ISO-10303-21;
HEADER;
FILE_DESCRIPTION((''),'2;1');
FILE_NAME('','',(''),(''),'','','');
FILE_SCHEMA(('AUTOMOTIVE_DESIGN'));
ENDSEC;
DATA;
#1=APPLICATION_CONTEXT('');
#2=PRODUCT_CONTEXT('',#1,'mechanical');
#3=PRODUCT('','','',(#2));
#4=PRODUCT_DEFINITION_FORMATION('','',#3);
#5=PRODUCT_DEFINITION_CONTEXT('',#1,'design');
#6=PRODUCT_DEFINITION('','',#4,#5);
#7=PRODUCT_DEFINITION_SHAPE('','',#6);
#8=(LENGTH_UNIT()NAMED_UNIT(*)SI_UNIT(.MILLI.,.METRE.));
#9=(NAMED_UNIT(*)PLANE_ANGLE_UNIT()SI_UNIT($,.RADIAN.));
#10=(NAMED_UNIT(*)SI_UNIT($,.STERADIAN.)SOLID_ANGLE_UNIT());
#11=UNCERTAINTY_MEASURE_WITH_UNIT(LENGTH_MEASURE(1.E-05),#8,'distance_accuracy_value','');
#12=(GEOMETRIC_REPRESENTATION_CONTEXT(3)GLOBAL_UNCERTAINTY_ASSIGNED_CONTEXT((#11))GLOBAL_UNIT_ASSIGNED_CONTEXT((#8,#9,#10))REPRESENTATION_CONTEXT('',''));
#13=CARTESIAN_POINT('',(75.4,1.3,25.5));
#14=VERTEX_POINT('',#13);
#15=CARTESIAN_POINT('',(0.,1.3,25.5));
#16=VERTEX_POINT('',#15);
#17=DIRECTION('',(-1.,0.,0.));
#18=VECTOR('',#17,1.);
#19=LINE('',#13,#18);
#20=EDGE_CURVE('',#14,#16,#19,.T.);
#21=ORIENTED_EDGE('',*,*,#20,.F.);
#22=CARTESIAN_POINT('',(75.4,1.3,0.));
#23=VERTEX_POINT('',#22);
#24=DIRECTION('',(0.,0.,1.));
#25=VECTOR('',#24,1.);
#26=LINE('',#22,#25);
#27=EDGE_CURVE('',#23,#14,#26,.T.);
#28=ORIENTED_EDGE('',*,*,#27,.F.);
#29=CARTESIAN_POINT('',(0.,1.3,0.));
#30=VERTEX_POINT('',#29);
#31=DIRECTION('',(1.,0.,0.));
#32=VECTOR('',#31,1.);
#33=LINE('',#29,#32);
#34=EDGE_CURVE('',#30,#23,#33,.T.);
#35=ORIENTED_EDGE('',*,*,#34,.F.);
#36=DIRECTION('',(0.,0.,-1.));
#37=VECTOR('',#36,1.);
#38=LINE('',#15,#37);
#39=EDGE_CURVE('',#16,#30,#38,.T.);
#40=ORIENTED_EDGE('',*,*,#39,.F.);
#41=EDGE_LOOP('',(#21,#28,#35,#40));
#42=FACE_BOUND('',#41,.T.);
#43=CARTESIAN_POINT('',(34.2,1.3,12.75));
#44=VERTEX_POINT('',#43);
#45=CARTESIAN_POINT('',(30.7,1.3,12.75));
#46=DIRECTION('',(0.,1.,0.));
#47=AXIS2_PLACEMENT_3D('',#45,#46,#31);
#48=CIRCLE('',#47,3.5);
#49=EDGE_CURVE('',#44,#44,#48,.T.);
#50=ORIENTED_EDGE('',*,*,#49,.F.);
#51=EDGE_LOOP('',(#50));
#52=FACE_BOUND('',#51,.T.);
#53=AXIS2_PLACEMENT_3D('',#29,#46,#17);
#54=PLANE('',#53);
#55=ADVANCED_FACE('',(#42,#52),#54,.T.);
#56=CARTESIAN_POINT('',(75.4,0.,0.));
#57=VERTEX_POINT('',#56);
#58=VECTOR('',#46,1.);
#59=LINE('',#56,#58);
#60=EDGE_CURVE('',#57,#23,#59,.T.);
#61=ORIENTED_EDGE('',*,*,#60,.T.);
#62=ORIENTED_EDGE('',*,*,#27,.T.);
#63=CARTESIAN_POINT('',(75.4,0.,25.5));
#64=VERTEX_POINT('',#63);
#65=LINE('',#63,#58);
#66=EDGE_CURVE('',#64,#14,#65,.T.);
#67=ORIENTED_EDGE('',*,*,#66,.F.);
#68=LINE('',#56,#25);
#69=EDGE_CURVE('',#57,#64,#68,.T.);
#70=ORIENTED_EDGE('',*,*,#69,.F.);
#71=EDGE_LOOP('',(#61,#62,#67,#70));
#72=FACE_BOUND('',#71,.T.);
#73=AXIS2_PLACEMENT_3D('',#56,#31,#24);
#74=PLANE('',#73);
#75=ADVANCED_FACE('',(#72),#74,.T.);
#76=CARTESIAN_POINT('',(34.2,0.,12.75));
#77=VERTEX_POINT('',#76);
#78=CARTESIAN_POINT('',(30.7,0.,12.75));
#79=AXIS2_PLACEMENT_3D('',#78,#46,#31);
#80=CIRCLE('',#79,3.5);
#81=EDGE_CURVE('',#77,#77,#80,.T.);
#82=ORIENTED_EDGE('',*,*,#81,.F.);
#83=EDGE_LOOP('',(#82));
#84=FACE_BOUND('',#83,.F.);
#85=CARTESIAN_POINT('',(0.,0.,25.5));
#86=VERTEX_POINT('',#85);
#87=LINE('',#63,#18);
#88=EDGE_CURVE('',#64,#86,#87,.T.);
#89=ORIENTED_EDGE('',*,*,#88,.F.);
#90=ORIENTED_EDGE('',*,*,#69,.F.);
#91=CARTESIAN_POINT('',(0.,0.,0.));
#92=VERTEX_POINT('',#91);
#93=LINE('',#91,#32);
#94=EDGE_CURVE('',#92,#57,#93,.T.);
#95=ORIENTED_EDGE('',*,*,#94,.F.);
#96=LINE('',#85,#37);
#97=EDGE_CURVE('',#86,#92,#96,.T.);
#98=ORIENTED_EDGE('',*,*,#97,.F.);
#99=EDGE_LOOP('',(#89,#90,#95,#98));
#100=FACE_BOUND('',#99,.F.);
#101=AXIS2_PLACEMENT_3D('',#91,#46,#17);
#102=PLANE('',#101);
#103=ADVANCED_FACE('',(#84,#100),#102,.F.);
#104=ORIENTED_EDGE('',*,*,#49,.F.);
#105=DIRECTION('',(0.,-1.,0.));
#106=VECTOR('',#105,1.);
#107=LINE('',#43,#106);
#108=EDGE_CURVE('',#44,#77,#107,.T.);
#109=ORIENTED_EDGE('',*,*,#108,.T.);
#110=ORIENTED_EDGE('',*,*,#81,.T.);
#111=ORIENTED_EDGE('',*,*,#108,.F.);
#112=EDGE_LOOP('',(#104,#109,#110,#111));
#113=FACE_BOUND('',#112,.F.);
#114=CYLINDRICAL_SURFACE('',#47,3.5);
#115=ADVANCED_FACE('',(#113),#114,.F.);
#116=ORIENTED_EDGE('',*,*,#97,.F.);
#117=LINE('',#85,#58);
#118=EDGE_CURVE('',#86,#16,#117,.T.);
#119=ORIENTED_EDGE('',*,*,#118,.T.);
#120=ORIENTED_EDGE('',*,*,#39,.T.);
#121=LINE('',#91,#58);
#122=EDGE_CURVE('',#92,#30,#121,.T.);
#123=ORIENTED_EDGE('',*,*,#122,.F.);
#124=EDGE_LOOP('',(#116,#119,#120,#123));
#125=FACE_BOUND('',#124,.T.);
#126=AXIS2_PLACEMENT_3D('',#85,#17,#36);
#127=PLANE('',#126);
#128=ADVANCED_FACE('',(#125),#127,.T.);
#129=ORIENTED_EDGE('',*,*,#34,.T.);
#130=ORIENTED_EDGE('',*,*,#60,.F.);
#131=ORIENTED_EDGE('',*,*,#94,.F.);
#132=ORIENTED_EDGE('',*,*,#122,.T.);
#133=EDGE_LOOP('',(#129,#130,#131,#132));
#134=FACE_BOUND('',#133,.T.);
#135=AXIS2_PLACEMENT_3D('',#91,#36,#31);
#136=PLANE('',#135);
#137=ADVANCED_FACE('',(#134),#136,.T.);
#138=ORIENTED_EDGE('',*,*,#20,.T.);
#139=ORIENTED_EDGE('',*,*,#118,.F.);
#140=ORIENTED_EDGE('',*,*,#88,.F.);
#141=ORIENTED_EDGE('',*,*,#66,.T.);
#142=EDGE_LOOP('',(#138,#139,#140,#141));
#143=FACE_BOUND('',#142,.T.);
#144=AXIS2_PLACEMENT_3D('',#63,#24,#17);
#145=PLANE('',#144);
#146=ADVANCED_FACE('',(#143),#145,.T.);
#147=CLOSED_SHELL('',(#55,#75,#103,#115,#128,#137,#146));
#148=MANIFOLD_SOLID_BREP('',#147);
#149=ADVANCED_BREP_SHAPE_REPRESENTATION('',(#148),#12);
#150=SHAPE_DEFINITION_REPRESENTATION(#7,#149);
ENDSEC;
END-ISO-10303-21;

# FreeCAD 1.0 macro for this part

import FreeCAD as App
import Part
import Sketcher
Q = App.Units.Quantity


def add_polygon(sketch, points):
    """Adds a closed chain of lines whose ends are joined by coincident constraints."""
    first, n = sketch.GeometryCount, len(points)
    for a, b in zip(points, points[1:] + points[:1]):
        sketch.addGeometry(Part.LineSegment(App.Vector(*a, 0), App.Vector(*b, 0)), False)
    for i in range(n):
        sketch.addConstraint(Sketcher.Constraint("Coincident", first + i, 2, first + (i + 1) % n, 1))

doc = App.newDocument("Part")
params = doc.addObject("Spreadsheet::Sheet", "Params")
for row, (alias, value) in enumerate([
    ("sketch1_width", "75.4 mm"),
    ("sketch1_height", "25.5 mm"),
    ("pad1_length", "1.3 mm"),
    ("sketch2_diameter", "7 mm"),
    ("pocket1_length", "10 mm"),
], start=1):
    params.set(f"A{row}", alias)
    params.set(f"B{row}", "=" + value)
    params.setAlias(f"B{row}", alias)

body = doc.addObject("PartDesign::Body", "Body")

# Sketch on XZ plane
sketch1 = body.newObject("Sketcher::SketchObject", "Sketch")
sketch1.AttachmentSupport = (doc.getObject("XZ_Plane"), [""])
sketch1.MapMode = "FlatFace"
add_polygon(sketch1, [(75, 0), (0, 0), (0, 26), (75, 26)])  # lines 0-3
sketch1.addConstraint(Sketcher.Constraint("Horizontal", 0))
sketch1.addConstraint(Sketcher.Constraint("Vertical", 1))
sketch1.addConstraint(Sketcher.Constraint("Horizontal", 2))
sketch1.addConstraint(Sketcher.Constraint("Vertical", 3))
sketch1.addConstraint(Sketcher.Constraint("Coincident", 0, 2, -1, 1))
sketch1.addConstraint(Sketcher.Constraint("DistanceX", 0, 2, 0, 1, Q("75.4 mm")))
sketch1.addConstraint(Sketcher.Constraint("DistanceY", 1, 1, 1, 2, Q("25.5 mm")))
sketch1.setExpression("Constraints[9]", "Params.sketch1_width")
sketch1.setExpression("Constraints[10]", "Params.sketch1_height")
pad1 = body.newObject("PartDesign::Pad", "Pad")
pad1.Profile = sketch1
pad1.setExpression("Length", "Params.pad1_length")
pad1.Reversed = True

# Sketch on XZ plane
sketch2 = body.newObject("Sketcher::SketchObject", "Sketch001")
sketch2.AttachmentSupport = (doc.getObject("XZ_Plane"), [""])
sketch2.MapMode = "FlatFace"
sketch2.AttachmentOffset = App.Placement(App.Vector(0, 0, -1.3), App.Rotation())
sketch2.addGeometry(Part.Circle(App.Vector(30.7, 12.8, 0), App.Vector(0, 0, 1), 3.5), False)
sketch2.addConstraint(Sketcher.Constraint("Diameter", 0, Q("7 mm")))
sketch2.addConstraint(Sketcher.Constraint("DistanceX", -1, 1, 0, 3, Q("30.7 mm")))
sketch2.addConstraint(Sketcher.Constraint("DistanceY", -1, 1, 0, 3, Q("12.75 mm")))
sketch2.setExpression("Constraints[0]", "Params.sketch2_diameter")
pocket1 = body.newObject("PartDesign::Pocket", "Pocket")
pocket1.Profile = sketch2
pocket1.setExpression("Length", "Params.pocket1_length")
pocket1.Reversed = True

doc.recompute()
